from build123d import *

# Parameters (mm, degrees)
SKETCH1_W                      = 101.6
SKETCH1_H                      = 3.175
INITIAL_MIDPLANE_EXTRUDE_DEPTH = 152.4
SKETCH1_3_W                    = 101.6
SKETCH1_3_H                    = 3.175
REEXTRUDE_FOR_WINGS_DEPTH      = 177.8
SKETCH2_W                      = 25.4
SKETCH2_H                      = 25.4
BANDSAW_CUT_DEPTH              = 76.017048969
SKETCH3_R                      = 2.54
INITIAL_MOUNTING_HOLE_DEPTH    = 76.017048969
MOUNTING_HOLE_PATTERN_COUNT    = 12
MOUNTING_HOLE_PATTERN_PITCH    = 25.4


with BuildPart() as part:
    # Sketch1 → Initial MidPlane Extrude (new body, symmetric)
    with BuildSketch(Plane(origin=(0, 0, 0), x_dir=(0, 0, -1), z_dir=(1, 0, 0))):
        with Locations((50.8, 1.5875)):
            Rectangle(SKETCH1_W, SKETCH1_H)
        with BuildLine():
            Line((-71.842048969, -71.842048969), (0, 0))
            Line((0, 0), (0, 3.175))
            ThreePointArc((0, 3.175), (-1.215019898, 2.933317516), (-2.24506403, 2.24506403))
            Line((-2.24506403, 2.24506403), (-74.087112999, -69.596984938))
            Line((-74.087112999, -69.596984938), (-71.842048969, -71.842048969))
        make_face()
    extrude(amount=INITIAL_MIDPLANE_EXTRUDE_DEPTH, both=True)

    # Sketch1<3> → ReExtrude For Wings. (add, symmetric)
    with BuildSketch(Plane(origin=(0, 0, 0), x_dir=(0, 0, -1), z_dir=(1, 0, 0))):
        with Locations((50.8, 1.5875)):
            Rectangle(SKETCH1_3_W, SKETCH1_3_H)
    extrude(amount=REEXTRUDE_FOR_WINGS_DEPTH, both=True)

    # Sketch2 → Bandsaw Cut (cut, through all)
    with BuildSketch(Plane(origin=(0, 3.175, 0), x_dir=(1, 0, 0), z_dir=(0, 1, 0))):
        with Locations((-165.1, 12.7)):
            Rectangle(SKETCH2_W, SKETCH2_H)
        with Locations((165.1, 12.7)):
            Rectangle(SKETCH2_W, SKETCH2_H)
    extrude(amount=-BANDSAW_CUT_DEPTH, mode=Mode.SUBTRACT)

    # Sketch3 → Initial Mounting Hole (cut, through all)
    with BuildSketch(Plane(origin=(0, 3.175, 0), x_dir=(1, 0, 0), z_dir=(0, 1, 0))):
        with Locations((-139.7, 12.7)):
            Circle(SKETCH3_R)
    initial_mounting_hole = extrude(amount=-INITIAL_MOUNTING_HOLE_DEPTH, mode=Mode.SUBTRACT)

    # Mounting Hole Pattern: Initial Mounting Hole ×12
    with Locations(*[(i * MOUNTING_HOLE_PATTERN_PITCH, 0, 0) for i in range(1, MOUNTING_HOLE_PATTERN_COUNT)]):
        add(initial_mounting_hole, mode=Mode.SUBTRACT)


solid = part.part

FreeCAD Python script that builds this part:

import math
import FreeCAD as App
import Part
import Sketcher
Q = App.Units.Quantity


def add_polygon(sketch, points):
    """Adds a closed chain of lines whose ends are joined by coincident constraints."""
    first, n = sketch.GeometryCount, len(points)
    for a, b in zip(points, points[1:] + points[:1]):
        sketch.addGeometry(Part.LineSegment(App.Vector(*a, 0), App.Vector(*b, 0)), False)
    for i in range(n):
        sketch.addConstraint(Sketcher.Constraint("Coincident", first + i, 2, first + (i + 1) % n, 1))

doc = App.newDocument("Part")
params = doc.addObject("Spreadsheet::Sheet", "Params")
for row, (alias, value) in enumerate([
    ("sketch1_height", "4 in"),
    ("sketch1_length", "4 in"),
    ("sketch1_radius", "0.125 in"),
    ("pad1_length", "12 in"),
    ("sketch2_height", "4 in"),
    ("sketch2_width", "0.125 in"),
    ("pad2_length", "14 in"),
    ("sketch3_width", "1 in"),
    ("sketch4_diameter", "0.2 in"),
    ("linearpattern_pitch", "1 in"),
], start=1):
    params.set(f"A{row}", alias)
    params.set(f"B{row}", "=" + value)
    params.setAlias(f"B{row}", alias)

body = doc.addObject("PartDesign::Body", "Body")

# Sketch on YZ plane
sketch1 = body.newObject("Sketcher::SketchObject", "Sketch")
sketch1.AttachmentSupport = (doc.getObject("YZ_Plane"), [""])
sketch1.MapMode = "FlatFace"
sketch1.addGeometry([
    Part.LineSegment(App.Vector(0, 0, 0), App.Vector(0, -101.6, 0)),  # 0
    Part.LineSegment(App.Vector(0, -101.6, 0), App.Vector(3.175, -101.6, 0)),  # 1
    Part.LineSegment(App.Vector(3.175, -101.6, 0), App.Vector(3.175, 0, 0)),  # 2
    Part.ArcOfCircle(Part.Circle(App.Vector(0, 0, 0), App.Vector(0, 0, 1), 3.175), math.radians(0), math.radians(45)),  # 3
    Part.LineSegment(App.Vector(2.245064, 2.245064, 0), App.Vector(-69.596985, 74.087113, 0)),  # 4
    Part.LineSegment(App.Vector(-69.596985, 74.087113, 0), App.Vector(-71.842049, 71.842049, 0)),  # 5
    Part.LineSegment(App.Vector(-71.842049, 71.842049, 0), App.Vector(0, 0, 0)),  # 6
], False)
sketch1.addConstraint([
    Sketcher.Constraint("Coincident", 0, 2, 1, 1),
    Sketcher.Constraint("Coincident", 1, 2, 2, 1),
    Sketcher.Constraint("Tangent", 2, 2, 3, 1),
    Sketcher.Constraint("Tangent", 3, 2, 4, 1),
    Sketcher.Constraint("Coincident", 4, 2, 5, 1),
    Sketcher.Constraint("Coincident", 5, 2, 6, 1),
    Sketcher.Constraint("Coincident", 6, 2, 0, 1),
    Sketcher.Constraint("Vertical", 0),
    Sketcher.Constraint("Horizontal", 1),
    Sketcher.Constraint("Vertical", 2),
    Sketcher.Constraint("Coincident", 3, 3, -1, 1),
    Sketcher.Constraint("Coincident", 6, 2, -1, 1),
    Sketcher.Constraint("Perpendicular", 4, 5),
    Sketcher.Constraint("Perpendicular", 5, 6),
    Sketcher.Constraint("DistanceY", 0, 2, 0, 1, Q("4 in")),
    Sketcher.Constraint("Distance", 4, Q("4 in")),
    Sketcher.Constraint("Angle", 4, Q("135 deg")),
    Sketcher.Constraint("Radius", 3, Q("0.125 in")),
])
sketch1.setExpression("Constraints[14]", "Params.sketch1_height")
sketch1.setExpression("Constraints[15]", "Params.sketch1_length")
sketch1.setExpression("Constraints[17]", "Params.sketch1_radius")
pad1 = body.newObject("PartDesign::Pad", "Pad")
pad1.Profile = sketch1
pad1.setExpression("Length", "Params.pad1_length")
pad1.Midplane = True

# Sketch on YZ plane
sketch2 = body.newObject("Sketcher::SketchObject", "Sketch001")
sketch2.AttachmentSupport = (doc.getObject("YZ_Plane"), [""])
sketch2.MapMode = "FlatFace"
add_polygon(sketch2, [(3.175, 0), (0, 0), (0, -101.6), (3.175, -101.6)])  # lines 0-3
sketch2.addConstraint([
    Sketcher.Constraint("Horizontal", 0),
    Sketcher.Constraint("Vertical", 1),
    Sketcher.Constraint("Horizontal", 2),
    Sketcher.Constraint("Vertical", 3),
    Sketcher.Constraint("Coincident", 0, 2, -1, 1),
    Sketcher.Constraint("DistanceY", 1, 2, 1, 1, Q("4 in")),
    Sketcher.Constraint("DistanceX", 0, 2, 0, 1, Q("0.125 in")),
])
sketch2.setExpression("Constraints[9]", "Params.sketch2_height")
sketch2.setExpression("Constraints[10]", "Params.sketch2_width")
pad2 = body.newObject("PartDesign::Pad", "Pad001")
pad2.Profile = sketch2
pad2.setExpression("Length", "Params.pad2_length")
pad2.Midplane = True

# Sketch on XZ plane
sketch3 = body.newObject("Sketcher::SketchObject", "Sketch002")
sketch3.AttachmentSupport = (doc.getObject("XZ_Plane"), [""])
sketch3.MapMode = "FlatFace"
sketch3.AttachmentOffset = App.Placement(App.Vector(0, 0, -0.125 * 25.4), App.Rotation())
add_polygon(sketch3, [(-177.8, -25.4), (-177.8, 0), (-152.4, 0), (-152.4, -25.4)])  # lines 0-3
add_polygon(sketch3, [(152.4, -25.4), (152.4, 0), (177.8, 0), (177.8, -25.4)])  # lines 4-7
sketch3.addConstraint([
    Sketcher.Constraint("Vertical", 0),
    Sketcher.Constraint("Horizontal", 1),
    Sketcher.Constraint("Vertical", 2),
    Sketcher.Constraint("Horizontal", 3),
    Sketcher.Constraint("Vertical", 4),
    Sketcher.Constraint("Horizontal", 5),
    Sketcher.Constraint("Vertical", 6),
    Sketcher.Constraint("Horizontal", 7),
    Sketcher.Constraint("Symmetric", 1, 2, 4, 2, -1, 1),
    Sketcher.Constraint("Symmetric", 0, 2, 5, 2, -2),
    Sketcher.Constraint("Horizontal", 3, 2, 6, 2),
    Sketcher.Constraint("Equal", 7, 0),
    Sketcher.Constraint("DistanceX", 1, 1, 1, 2, Q("1 in")),
    Sketcher.Constraint("DistanceX", 0, 2, -1, 1, Q("7 in")),
])
sketch3.setExpression("Constraints[20]", "Params.sketch3_width")
pocket1 = body.newObject("PartDesign::Pocket", "Pocket")
pocket1.Profile = sketch3
pocket1.Type = "ThroughAll"
pocket1.Reversed = True

# Sketch on XZ plane
sketch4 = body.newObject("Sketcher::SketchObject", "Sketch003")
sketch4.AttachmentSupport = (doc.getObject("XZ_Plane"), [""])
sketch4.MapMode = "FlatFace"
sketch4.AttachmentOffset = App.Placement(App.Vector(0, 0, -0.125 * 25.4), App.Rotation())
sketch4.addGeometry(Part.Circle(App.Vector(-139.7, -12.7, 0), App.Vector(0, 0, 1), 2.54), False)
sketch4.addConstraint([
    Sketcher.Constraint("Diameter", 0, Q("0.2 in")),
    Sketcher.Constraint("DistanceX", 0, 3, -1, 1, Q("5.5 in")),
    Sketcher.Constraint("DistanceY", 0, 3, -1, 1, Q("0.5 in")),
])
sketch4.setExpression("Constraints[0]", "Params.sketch4_diameter")
pocket2 = body.newObject("PartDesign::Pocket", "Pocket001")
pocket2.Profile = sketch4
pocket2.Type = "ThroughAll"
pocket2.Reversed = True
doc.recompute()

linearpattern = body.newObject("PartDesign::LinearPattern", "LinearPattern")
linearpattern.Originals = [pocket2]
linearpattern.Direction = (doc.getObject("X_Axis"), [""])
linearpattern.Mode = "offset"
linearpattern.setExpression("Offset", "Params.linearpattern_pitch")
linearpattern.Occurrences = 12
body.Tip = linearpattern

doc.recompute()
